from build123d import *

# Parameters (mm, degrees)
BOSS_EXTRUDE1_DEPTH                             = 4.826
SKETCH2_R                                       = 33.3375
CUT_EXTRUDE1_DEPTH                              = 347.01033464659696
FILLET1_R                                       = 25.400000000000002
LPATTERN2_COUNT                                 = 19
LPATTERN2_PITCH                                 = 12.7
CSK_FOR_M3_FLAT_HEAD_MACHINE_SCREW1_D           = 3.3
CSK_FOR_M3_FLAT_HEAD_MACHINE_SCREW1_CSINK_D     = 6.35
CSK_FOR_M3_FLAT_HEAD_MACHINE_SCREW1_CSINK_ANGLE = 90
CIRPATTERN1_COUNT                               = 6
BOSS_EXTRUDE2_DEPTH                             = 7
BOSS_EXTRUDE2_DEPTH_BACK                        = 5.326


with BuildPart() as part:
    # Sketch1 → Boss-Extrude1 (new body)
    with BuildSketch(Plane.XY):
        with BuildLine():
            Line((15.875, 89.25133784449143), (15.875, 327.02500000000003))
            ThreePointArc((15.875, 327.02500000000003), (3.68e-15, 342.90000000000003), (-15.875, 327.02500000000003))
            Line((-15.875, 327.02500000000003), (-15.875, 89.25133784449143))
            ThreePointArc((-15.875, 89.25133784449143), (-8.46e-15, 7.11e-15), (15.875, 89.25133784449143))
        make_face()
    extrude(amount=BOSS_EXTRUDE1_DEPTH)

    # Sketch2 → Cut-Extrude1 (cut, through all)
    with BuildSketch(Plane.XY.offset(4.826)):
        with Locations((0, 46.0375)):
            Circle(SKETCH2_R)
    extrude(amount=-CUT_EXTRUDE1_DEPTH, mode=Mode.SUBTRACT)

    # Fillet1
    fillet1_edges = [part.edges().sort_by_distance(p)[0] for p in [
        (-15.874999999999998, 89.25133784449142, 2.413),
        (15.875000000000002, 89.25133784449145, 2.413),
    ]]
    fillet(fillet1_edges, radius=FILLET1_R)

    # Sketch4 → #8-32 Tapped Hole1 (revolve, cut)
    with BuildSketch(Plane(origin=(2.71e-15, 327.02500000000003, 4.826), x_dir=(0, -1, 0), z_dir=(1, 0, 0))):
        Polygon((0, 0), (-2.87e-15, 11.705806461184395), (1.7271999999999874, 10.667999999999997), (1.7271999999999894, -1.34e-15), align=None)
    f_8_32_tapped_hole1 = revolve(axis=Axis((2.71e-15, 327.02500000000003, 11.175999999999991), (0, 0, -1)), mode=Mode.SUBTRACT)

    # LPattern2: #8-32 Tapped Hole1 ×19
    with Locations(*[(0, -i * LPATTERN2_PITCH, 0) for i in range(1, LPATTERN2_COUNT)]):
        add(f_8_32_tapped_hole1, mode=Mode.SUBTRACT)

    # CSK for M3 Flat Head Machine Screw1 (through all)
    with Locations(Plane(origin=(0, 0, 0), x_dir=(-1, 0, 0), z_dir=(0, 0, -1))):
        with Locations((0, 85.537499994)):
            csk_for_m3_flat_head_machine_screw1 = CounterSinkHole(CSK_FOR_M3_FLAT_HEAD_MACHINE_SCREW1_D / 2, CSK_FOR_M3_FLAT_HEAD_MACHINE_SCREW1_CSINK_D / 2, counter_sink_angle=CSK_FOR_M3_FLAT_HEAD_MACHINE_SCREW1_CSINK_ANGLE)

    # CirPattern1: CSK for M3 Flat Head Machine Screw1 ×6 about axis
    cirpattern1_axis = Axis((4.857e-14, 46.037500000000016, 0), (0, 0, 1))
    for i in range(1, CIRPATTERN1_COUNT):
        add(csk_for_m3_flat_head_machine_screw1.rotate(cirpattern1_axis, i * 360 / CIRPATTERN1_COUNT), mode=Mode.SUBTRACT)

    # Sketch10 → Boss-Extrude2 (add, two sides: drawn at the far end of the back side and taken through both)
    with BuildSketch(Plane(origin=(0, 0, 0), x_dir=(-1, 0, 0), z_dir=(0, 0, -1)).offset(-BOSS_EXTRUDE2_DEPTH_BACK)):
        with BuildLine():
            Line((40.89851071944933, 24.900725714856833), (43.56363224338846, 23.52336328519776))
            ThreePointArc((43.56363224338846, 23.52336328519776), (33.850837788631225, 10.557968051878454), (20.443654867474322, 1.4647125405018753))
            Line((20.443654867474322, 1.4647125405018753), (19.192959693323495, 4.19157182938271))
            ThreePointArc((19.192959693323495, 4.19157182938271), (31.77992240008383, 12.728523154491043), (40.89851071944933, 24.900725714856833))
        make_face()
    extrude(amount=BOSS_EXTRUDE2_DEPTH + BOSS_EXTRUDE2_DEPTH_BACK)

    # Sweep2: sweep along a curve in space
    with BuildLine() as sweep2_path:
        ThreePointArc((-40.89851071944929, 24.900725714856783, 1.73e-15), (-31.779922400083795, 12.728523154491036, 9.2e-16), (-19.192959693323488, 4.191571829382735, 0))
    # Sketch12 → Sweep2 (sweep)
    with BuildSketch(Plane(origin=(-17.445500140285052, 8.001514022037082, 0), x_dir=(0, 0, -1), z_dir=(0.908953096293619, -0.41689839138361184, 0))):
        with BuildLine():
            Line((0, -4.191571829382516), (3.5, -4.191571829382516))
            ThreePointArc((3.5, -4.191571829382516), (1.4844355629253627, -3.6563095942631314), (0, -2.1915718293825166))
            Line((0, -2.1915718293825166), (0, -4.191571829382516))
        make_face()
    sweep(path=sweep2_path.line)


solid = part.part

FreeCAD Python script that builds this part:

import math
import FreeCAD as App
import Part
import Sketcher
Q = App.Units.Quantity


def edges_at(feature, points):
    """Names of the edges that pass closest to the given points."""
    edges = feature.Shape.Edges
    near = lambda p: min(range(len(edges)), key=lambda i: edges[i].distToShape(Part.Vertex(*p))[0])
    return sorted({f"Edge{near(p) + 1}" for p in points})

doc = App.newDocument("Part")
body = doc.addObject("PartDesign::Body", "Body")

# Sketch on XY plane
sketch1 = body.newObject("Sketcher::SketchObject", "Sketch")
sketch1.AttachmentSupport = (doc.getObject("XY_Plane"), [""])
sketch1.MapMode = "FlatFace"
sketch1.addGeometry([
    Part.LineSegment(App.Vector(16, 89, 0), App.Vector(16, 327, 0)),
    Part.ArcOfCircle(Part.Circle(App.Vector(0, 327, 0), App.Vector(0, 0, 1), 16), math.radians(0), math.radians(180)),
    Part.LineSegment(App.Vector(-16, 327, 0), App.Vector(-16, 89, 0)),
    Part.ArcOfCircle(Part.Circle(App.Vector(0, 46, 0), App.Vector(0, 0, 1), 46), math.radians(110), math.radians(430)),
], False)
sketch1.addConstraint([
    Sketcher.Constraint("Tangent", 0, 2, 1, 1),
    Sketcher.Constraint("Tangent", 1, 2, 2, 1),
    Sketcher.Constraint("Coincident", 2, 2, 3, 1),
    Sketcher.Constraint("Coincident", 3, 2, 0, 1),
    Sketcher.Constraint("Vertical", 0),
    Sketcher.Constraint("Vertical", 2),
    Sketcher.Constraint("Symmetric", 2, 2, 3, 2, -2),
    Sketcher.Constraint("Radius", 1, Q("0.625 in")),
    Sketcher.Constraint("Radius", 3, Q("1.8125 in")),
    Sketcher.Constraint("DistanceY", -1, 1, 1, 3, Q("12.875 in")),
    Sketcher.Constraint("DistanceY", -1, 1, 3, 3, Q("1.8125 in")),
])
pad1 = body.newObject("PartDesign::Pad", "Pad")
pad1.Profile = sketch1
pad1.Length = Q("0.19 in")

# Sketch on XY plane
sketch2 = body.newObject("Sketcher::SketchObject", "Sketch001")
sketch2.AttachmentSupport = (doc.getObject("XY_Plane"), [""])
sketch2.MapMode = "FlatFace"
sketch2.AttachmentOffset = App.Placement(App.Vector(0, 0, 0.19 * 25.4), App.Rotation())
sketch2.addGeometry(Part.Circle(App.Vector(0, 46, 0), App.Vector(0, 0, 1), 33), False)
sketch2.addConstraint([
    Sketcher.Constraint("PointOnObject", 0, 3, -2),
    Sketcher.Constraint("Diameter", 0, Q("2.625 in")),
    Sketcher.Constraint("DistanceY", -1, 1, 0, 3, Q("1.8125 in")),
])
pocket1 = body.newObject("PartDesign::Pocket", "Pocket")
pocket1.Profile = sketch2
pocket1.Type = "ThroughAll"
doc.recompute()

fillet = body.newObject("PartDesign::Fillet", "Fillet")
fillet.Base = (pocket1, edges_at(pocket1, [(-15.875, 89.251, 2.413), (15.875, 89.251, 2.413)]))
fillet.Radius = Q("1 in")

# Sketch on YZ plane
sketch3 = body.newObject("Sketcher::SketchObject", "Sketch002")
sketch3.AttachmentSupport = (doc.getObject("YZ_Plane"), [""])
sketch3.MapMode = "FlatFace"
sketch3.addGeometry([
    Part.LineSegment(App.Vector(327, -6.9, 0), App.Vector(327, 4.8, 0)),
    Part.LineSegment(App.Vector(327, 4.8, 0), App.Vector(325.3, 4.8, 0)),
    Part.LineSegment(App.Vector(325.3, 4.8, 0), App.Vector(325.3, -5.8, 0)),
    Part.LineSegment(App.Vector(325.3, -5.8, 0), App.Vector(327, -6.9, 0)),
], False)
sketch3.addGeometry(Part.LineSegment(App.Vector(327, 4.8, 0), App.Vector(327, -6.9, 0)), True)  # axis
sketch3.addConstraint([
    Sketcher.Constraint("Coincident", 0, 2, 1, 1),
    Sketcher.Constraint("Coincident", 1, 2, 2, 1),
    Sketcher.Constraint("Coincident", 2, 2, 3, 1),
    Sketcher.Constraint("Coincident", 3, 2, 0, 1),
    Sketcher.Constraint("Vertical", 0),
    Sketcher.Constraint("Horizontal", 1),
    Sketcher.Constraint("Vertical", 2),
    Sketcher.Constraint("Vertical", 4),
    Sketcher.Constraint("Coincident", 4, 1, 0, 2),
    Sketcher.Constraint("Equal", 0, 4),
    Sketcher.Constraint("Angle", 3, Q("-31 deg")),
    Sketcher.Constraint("DistanceY", 2, 2, 2, 1, Q("0.42 in")),
    Sketcher.Constraint("DistanceX", 1, 2, 1, 1, Q("0.068 in")),
    Sketcher.Constraint("DistanceY", -1, 1, 0, 2, Q("0.19 in")),
    Sketcher.Constraint("DistanceX", -1, 1, 0, 2, Q("12.875 in")),
])
groove = body.newObject("PartDesign::Groove", "Groove")
groove.Profile = sketch3
groove.ReferenceAxis = (sketch3, ["Axis0"])
groove.Angle = 360
doc.recompute()

linearpattern = body.newObject("PartDesign::LinearPattern", "LinearPattern")
linearpattern.Originals = [groove]
linearpattern.Direction = (doc.getObject("Y_Axis"), [""])
linearpattern.Mode = "offset"
linearpattern.Offset = Q("0.5 in")
linearpattern.Occurrences = 19
linearpattern.Reversed = True
body.Tip = linearpattern

# Sketch on XY plane
sketch4 = body.newObject("Sketcher::SketchObject", "Sketch003")
sketch4.AttachmentSupport = (doc.getObject("XY_Plane"), [""])
sketch4.MapMode = "FlatFace"
sketch4.addGeometry(Part.Circle(App.Vector(0, 85.5, 0), App.Vector(0, 0, 1), 1.6), False)
sketch4.addConstraint([
    Sketcher.Constraint("PointOnObject", 0, 3, -2),
    Sketcher.Constraint("Diameter", 0, Q("3.3 mm")),
    Sketcher.Constraint("DistanceY", -1, 1, 0, 3, Q("85.5375 mm")),
])
doc.recompute()
hole = body.newObject("PartDesign::Hole", "Hole")
hole.Profile = sketch4
hole.ThreadType = "None"
hole.Diameter = 3.3
hole.DepthType = "ThroughAll"
hole.HoleCutType = "Countersink"
hole.HoleCutDiameter = Q("0.25 in")
hole.HoleCutCountersinkAngle = 90
hole.Reversed = True
doc.recompute()

datumline = body.newObject("PartDesign::Line", "DatumLine")
datumline.Placement = App.Placement(App.Vector(0, 46.0375, 0), App.Rotation(App.Vector(0, 0, 1), App.Vector(0, 0, 1)))
polarpattern = body.newObject("PartDesign::PolarPattern", "PolarPattern")
polarpattern.Originals = [hole]
polarpattern.Axis = (datumline, [""])
polarpattern.Angle = 360
polarpattern.Occurrences = 6
body.Tip = polarpattern

# Sketch on XY plane
sketch5 = body.newObject("Sketcher::SketchObject", "Sketch004")
sketch5.AttachmentSupport = (doc.getObject("XY_Plane"), [""])
sketch5.MapMode = "FlatFace"
sketch5.addGeometry([
    Part.LineSegment(App.Vector(-43.6, 23.5, 0), App.Vector(-40.9, 24.9, 0)),
    Part.ArcOfCircle(Part.Circle(App.Vector(0, 46, 0), App.Vector(0, 0, 1), 46), math.radians(-153), math.radians(-115)),
    Part.LineSegment(App.Vector(-19.2, 4.2, 0), App.Vector(-20.4, 1.5, 0)),
    Part.ArcOfCircle(Part.Circle(App.Vector(0, 46, 0), App.Vector(0, 0, 1), 49), math.radians(-153), math.radians(-115)),
], False)
sketch5.addConstraint([
    Sketcher.Constraint("Coincident", 0, 2, 1, 1),
    Sketcher.Constraint("Coincident", 1, 2, 2, 1),
    Sketcher.Constraint("Coincident", 2, 2, 3, 2),
    Sketcher.Constraint("Coincident", 3, 1, 0, 1),
    Sketcher.Constraint("Coincident", 3, 3, 1, 3),
    Sketcher.Constraint("PointOnObject", 1, 3, -2),
    Sketcher.Constraint("Radius", 1, Q("1.8125 in")),
    Sketcher.Constraint("Radius", 3, Q("49.0375 mm")),
    Sketcher.Constraint("DistanceY", -1, 1, 1, 3, Q("1.8125 in")),
    Sketcher.Constraint("DistanceX", 0, 2, -1, 1, Q("40.898511 mm")),
    Sketcher.Constraint("DistanceX", 1, 2, -1, 1, Q("19.19296 mm")),
    Sketcher.Constraint("DistanceY", 2, 2, 1, 2, Q("2.726859 mm")),
    Sketcher.Constraint("DistanceX", 3, 1, 0, 2, Q("2.665122 mm")),
])
pad2 = body.newObject("PartDesign::Pad", "Pad001")
pad2.Profile = sketch5
pad2.Type = "TwoLengths"
pad2.Length = 7
pad2.Length2 = 5.326
pad2.Reversed = True

# Sketch on an angled plane
sketch6 = body.newObject("Sketcher::SketchObject", "Sketch005")
sketch6.Placement = App.Placement(App.Vector(-17.4455, 8.001514, 0), App.Rotation(App.Vector(0, 0, -1), App.Vector(0.416898391, 0.908953096, 0), App.Vector(0.908953096, -0.416898391, 0), "ZXY"))
sketch6.addGeometry([
    Part.LineSegment(App.Vector(0, -4.2, 0), App.Vector(3.5, -4.2, 0)),
    Part.ArcOfCircle(Part.Circle(App.Vector(3.5, -0.1, 0), App.Vector(0, 0, 1), 4.1), math.radians(-149), math.radians(-90)),
    Part.LineSegment(App.Vector(0, -2.2, 0), App.Vector(0, -4.2, 0)),
], False)
sketch6.addConstraint([
    Sketcher.Constraint("Tangent", 0, 2, 1, 2),
    Sketcher.Constraint("Coincident", 1, 1, 2, 1),
    Sketcher.Constraint("Coincident", 2, 2, 0, 1),
    Sketcher.Constraint("Horizontal", 0),
    Sketcher.Constraint("Vertical", 2),
    Sketcher.Constraint("PointOnObject", 1, 1, -2),
    Sketcher.Constraint("Radius", 1, Q("4.0625 mm")),
    Sketcher.Constraint("DistanceX", 0, 1, 0, 2, Q("3.5 mm")),
    Sketcher.Constraint("DistanceY", 1, 3, -1, 1, Q("0.129072 mm")),
])

# Sketch on XY plane
sketch7 = body.newObject("Sketcher::SketchObject", "Sketch006")
sketch7.AttachmentSupport = (doc.getObject("XY_Plane"), [""])
sketch7.MapMode = "FlatFace"
sketch7.addGeometry(Part.ArcOfCircle(Part.Circle(App.Vector(0, 46, 0), App.Vector(0, 0, 1), 46), math.radians(-153), math.radians(-115)), False)
sketch7.addConstraint([
    Sketcher.Constraint("PointOnObject", 0, 3, -2),
    Sketcher.Constraint("Radius", 0, Q("1.8125 in")),
    Sketcher.Constraint("DistanceY", -1, 1, 0, 3, Q("1.8125 in")),
    Sketcher.Constraint("DistanceX", 0, 1, -1, 1, Q("40.898511 mm")),
    Sketcher.Constraint("DistanceX", 0, 2, -1, 1, Q("19.19296 mm")),
])
doc.recompute()

additivepipe = body.newObject("PartDesign::AdditivePipe", "AdditivePipe")
additivepipe.Profile = sketch6
additivepipe.Spine = (sketch7, ["Edge1"])

doc.recompute()
